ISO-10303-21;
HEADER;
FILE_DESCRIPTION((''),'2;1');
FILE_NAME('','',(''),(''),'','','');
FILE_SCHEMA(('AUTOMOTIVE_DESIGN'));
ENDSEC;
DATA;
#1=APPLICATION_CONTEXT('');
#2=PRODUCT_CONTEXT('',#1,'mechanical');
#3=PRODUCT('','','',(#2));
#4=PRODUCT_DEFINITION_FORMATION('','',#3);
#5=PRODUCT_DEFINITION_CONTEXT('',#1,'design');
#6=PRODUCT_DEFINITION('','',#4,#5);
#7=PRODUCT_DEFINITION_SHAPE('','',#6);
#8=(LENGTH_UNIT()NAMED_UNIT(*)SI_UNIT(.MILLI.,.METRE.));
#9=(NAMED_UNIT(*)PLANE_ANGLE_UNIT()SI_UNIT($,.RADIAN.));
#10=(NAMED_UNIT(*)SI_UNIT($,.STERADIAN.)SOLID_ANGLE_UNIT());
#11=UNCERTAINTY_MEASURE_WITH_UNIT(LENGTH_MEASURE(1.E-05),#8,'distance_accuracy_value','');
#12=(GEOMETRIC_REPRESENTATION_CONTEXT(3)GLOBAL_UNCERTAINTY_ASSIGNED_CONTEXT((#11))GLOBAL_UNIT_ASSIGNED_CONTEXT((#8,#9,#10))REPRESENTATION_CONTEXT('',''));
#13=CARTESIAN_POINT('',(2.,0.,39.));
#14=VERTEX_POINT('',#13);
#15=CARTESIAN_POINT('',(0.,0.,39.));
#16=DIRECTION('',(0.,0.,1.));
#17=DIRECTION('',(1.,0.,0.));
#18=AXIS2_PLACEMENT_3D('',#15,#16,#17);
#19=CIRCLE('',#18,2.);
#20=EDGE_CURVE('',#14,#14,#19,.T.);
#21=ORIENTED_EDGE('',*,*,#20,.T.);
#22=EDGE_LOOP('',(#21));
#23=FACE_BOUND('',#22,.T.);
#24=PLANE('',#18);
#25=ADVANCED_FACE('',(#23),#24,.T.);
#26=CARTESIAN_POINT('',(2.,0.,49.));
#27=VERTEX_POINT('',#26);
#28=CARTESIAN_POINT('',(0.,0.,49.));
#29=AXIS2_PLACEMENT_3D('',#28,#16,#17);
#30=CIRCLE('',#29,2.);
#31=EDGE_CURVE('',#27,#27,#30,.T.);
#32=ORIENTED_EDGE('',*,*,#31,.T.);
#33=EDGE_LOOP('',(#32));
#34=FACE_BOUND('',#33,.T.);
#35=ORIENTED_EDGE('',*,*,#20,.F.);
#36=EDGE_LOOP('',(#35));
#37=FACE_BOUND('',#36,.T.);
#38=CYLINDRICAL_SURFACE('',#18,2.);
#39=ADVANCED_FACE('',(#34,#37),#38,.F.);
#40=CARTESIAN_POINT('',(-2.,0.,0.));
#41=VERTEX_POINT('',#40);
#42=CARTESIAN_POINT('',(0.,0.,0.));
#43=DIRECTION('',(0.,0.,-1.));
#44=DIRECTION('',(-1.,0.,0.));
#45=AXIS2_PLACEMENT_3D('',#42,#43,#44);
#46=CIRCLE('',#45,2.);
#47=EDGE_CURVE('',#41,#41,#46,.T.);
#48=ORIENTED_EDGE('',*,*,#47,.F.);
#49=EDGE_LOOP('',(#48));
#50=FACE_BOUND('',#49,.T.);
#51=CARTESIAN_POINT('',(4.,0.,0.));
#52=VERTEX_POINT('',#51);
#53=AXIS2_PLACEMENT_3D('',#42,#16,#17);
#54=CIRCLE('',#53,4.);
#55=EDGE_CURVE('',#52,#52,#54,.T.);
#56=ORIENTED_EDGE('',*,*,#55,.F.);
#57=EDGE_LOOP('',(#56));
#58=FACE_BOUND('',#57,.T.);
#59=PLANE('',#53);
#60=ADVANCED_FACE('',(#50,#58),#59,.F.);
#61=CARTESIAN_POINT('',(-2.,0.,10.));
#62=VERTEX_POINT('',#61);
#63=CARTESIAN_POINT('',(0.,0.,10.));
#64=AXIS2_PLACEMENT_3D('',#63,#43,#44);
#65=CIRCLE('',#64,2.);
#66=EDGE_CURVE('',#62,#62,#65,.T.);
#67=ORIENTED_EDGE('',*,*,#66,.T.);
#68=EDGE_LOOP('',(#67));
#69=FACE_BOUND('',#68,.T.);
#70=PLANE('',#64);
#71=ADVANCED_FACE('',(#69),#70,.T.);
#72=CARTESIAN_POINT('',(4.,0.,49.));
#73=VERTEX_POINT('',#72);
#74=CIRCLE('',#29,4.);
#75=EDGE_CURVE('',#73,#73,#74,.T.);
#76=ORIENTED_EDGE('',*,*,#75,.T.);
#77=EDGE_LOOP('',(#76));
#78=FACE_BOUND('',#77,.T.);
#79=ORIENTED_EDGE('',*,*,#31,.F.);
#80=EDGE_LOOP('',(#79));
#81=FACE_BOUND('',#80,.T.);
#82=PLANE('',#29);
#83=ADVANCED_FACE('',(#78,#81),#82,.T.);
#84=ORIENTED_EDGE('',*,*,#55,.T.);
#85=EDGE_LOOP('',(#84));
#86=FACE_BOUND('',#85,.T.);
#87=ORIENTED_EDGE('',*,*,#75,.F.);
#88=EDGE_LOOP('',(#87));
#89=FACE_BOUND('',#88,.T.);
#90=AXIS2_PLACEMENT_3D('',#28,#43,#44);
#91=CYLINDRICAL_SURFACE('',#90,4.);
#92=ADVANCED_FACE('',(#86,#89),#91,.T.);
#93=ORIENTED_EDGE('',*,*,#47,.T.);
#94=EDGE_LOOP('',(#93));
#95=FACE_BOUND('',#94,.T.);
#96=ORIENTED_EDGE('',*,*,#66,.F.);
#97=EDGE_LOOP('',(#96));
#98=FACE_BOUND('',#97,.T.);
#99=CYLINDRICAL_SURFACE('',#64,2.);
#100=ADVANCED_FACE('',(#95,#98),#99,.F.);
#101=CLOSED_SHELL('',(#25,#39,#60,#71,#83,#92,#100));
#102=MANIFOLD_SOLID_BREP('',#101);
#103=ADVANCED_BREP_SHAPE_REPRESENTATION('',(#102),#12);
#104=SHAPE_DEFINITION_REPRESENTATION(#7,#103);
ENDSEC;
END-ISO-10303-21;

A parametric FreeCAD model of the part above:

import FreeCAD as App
import Part
import Sketcher
Q = App.Units.Quantity

doc = App.newDocument("Part")
body = doc.addObject("PartDesign::Body", "Body")

# Sketch on XY plane
sketch1 = body.newObject("Sketcher::SketchObject", "Sketch")
sketch1.AttachmentSupport = (doc.getObject("XY_Plane"), [""])
sketch1.MapMode = "FlatFace"
sketch1.addGeometry(Part.Circle(App.Vector(0, 0, 0), App.Vector(0, 0, 1), 4), False)
sketch1.addConstraint([
    Sketcher.Constraint("Coincident", 0, 3, -1, 1),
    Sketcher.Constraint("Diameter", 0, Q("8 mm")),
])
pad1 = body.newObject("PartDesign::Pad", "Pad")
pad1.Profile = sketch1
pad1.Length = 49

# Sketch on XY plane
sketch2 = body.newObject("Sketcher::SketchObject", "Sketch001")
sketch2.AttachmentSupport = (doc.getObject("XY_Plane"), [""])
sketch2.MapMode = "FlatFace"
sketch2.AttachmentOffset = App.Placement(App.Vector(0, 0, 49), App.Rotation())
sketch2.addGeometry(Part.Circle(App.Vector(0, 0, 0), App.Vector(0, 0, 1), 2), False)
sketch2.addConstraint([
    Sketcher.Constraint("Coincident", 0, 3, -1, 1),
    Sketcher.Constraint("Diameter", 0, Q("4 mm")),
])
pocket1 = body.newObject("PartDesign::Pocket", "Pocket")
pocket1.Profile = sketch2
pocket1.Length = 10

# Sketch on XY plane
sketch3 = body.newObject("Sketcher::SketchObject", "Sketch002")
sketch3.AttachmentSupport = (doc.getObject("XY_Plane"), [""])
sketch3.MapMode = "FlatFace"
sketch3.addGeometry(Part.Circle(App.Vector(0, 0, 0), App.Vector(0, 0, 1), 2), False)
sketch3.addConstraint([
    Sketcher.Constraint("Coincident", 0, 3, -1, 1),
    Sketcher.Constraint("Diameter", 0, Q("4 mm")),
])
pocket2 = body.newObject("PartDesign::Pocket", "Pocket001")
pocket2.Profile = sketch3
pocket2.Length = 10
pocket2.Reversed = True

doc.recompute()
